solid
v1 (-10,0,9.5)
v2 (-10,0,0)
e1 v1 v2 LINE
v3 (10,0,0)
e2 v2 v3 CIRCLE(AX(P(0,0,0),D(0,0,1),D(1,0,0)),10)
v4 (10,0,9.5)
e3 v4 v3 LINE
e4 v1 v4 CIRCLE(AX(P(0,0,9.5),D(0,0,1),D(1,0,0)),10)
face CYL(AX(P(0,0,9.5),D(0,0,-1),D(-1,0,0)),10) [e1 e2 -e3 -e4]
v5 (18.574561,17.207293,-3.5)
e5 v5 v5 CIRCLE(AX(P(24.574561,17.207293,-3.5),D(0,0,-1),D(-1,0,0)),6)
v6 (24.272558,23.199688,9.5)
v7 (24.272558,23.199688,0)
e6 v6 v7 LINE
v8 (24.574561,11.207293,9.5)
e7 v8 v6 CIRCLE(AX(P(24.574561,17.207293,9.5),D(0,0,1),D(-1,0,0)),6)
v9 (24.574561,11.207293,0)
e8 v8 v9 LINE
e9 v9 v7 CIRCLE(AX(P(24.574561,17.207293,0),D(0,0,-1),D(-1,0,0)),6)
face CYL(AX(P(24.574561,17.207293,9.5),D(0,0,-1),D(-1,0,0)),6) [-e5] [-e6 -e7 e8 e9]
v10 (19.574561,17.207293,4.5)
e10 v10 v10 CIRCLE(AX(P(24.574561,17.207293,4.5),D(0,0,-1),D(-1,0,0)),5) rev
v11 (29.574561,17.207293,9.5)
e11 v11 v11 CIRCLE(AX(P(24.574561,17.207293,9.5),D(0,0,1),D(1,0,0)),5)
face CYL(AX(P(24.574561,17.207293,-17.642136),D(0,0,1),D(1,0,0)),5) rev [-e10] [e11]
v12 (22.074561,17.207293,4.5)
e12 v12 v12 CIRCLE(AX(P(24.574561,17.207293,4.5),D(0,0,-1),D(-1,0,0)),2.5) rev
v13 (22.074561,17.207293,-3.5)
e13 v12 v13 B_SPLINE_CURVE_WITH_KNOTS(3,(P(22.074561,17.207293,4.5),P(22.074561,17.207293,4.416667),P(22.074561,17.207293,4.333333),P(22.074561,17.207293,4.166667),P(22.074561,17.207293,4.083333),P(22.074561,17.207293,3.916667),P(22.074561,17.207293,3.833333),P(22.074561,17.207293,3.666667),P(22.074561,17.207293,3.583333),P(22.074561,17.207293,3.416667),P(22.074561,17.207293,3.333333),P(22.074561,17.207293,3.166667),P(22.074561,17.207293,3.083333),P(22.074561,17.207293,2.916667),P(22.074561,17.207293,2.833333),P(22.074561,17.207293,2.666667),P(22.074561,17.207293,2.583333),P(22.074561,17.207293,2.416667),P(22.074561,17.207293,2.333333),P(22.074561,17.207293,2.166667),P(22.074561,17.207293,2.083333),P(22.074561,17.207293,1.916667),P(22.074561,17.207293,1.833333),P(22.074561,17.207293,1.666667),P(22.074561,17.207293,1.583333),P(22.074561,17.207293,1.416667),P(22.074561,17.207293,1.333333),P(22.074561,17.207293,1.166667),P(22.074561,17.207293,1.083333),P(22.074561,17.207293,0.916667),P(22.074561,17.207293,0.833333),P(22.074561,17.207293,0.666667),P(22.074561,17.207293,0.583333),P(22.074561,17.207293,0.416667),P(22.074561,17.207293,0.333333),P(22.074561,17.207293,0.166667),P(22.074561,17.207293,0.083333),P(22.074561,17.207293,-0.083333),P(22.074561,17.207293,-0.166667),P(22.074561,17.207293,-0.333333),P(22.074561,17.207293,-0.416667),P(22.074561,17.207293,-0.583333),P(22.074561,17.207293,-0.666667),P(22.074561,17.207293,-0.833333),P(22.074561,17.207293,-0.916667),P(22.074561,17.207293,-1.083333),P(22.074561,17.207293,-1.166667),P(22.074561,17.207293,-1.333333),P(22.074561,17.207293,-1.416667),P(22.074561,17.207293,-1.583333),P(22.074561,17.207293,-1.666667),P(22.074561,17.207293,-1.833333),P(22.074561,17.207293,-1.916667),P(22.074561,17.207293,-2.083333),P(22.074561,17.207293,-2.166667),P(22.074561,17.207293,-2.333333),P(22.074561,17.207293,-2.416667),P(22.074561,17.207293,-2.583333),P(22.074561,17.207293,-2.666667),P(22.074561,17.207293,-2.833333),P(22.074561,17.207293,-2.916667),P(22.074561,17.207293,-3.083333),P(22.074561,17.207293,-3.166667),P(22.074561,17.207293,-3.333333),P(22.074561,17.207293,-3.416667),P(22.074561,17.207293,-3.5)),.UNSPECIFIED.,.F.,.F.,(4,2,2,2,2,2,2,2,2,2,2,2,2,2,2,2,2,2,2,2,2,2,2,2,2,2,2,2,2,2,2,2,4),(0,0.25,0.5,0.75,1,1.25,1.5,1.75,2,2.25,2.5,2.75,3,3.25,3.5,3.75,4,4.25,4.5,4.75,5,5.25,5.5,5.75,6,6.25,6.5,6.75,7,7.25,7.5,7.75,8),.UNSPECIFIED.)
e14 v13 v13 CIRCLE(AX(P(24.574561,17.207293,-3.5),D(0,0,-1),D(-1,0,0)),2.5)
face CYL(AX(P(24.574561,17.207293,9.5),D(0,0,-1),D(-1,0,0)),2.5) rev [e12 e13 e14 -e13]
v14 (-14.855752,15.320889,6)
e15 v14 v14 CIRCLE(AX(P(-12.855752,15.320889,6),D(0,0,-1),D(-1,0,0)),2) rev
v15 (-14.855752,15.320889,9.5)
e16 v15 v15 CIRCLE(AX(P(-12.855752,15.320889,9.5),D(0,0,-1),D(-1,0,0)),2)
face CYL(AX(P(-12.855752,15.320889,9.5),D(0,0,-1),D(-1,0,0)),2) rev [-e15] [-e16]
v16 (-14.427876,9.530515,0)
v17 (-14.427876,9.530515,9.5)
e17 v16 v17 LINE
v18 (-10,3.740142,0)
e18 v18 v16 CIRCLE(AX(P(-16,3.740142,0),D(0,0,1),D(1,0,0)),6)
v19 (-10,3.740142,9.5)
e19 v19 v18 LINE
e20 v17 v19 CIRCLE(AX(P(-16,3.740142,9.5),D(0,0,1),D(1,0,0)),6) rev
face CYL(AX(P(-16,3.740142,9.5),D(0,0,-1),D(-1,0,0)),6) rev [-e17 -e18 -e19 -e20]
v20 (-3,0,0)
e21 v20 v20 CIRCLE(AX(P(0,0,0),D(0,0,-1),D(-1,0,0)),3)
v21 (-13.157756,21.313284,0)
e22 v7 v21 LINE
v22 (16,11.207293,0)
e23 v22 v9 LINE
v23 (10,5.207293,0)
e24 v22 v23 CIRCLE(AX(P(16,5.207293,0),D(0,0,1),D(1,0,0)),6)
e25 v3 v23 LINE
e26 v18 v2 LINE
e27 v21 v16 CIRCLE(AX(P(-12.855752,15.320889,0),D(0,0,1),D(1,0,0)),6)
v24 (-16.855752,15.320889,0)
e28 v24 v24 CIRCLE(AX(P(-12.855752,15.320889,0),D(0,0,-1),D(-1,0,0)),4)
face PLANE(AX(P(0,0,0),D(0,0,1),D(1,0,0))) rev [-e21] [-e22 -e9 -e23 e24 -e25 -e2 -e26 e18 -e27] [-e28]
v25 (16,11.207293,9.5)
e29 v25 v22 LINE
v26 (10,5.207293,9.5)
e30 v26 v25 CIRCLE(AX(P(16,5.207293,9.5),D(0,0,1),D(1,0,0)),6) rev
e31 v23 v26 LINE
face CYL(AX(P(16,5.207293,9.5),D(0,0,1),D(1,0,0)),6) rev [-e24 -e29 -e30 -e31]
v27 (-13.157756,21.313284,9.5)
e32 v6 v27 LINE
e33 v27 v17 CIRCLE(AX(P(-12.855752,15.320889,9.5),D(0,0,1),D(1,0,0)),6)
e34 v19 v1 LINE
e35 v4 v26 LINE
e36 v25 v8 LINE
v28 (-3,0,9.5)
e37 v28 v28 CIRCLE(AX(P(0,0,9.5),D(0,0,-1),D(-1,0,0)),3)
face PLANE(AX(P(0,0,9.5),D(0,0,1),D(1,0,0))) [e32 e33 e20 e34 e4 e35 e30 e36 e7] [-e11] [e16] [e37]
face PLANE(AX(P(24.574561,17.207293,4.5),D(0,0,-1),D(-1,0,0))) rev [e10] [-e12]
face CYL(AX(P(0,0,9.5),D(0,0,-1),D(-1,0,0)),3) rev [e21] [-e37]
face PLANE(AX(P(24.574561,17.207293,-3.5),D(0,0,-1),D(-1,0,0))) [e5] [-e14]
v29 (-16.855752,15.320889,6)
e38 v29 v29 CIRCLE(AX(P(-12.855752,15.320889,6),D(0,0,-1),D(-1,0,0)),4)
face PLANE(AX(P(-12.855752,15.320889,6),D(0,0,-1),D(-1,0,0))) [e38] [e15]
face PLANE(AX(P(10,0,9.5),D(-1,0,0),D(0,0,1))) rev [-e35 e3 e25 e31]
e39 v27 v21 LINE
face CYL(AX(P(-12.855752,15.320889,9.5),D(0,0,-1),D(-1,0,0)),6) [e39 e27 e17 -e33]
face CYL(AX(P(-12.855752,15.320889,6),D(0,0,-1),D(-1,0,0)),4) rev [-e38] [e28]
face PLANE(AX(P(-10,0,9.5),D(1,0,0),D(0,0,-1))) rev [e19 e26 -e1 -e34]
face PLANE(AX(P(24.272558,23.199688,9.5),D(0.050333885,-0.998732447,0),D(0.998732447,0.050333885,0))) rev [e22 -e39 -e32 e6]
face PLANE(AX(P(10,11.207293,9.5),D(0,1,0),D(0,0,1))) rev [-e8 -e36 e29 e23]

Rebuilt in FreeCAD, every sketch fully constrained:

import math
import FreeCAD as App
import Part
import Sketcher
from FreeCAD import Vector


def edges_at(feature, points):
    """Names of the edges that pass closest to the given points."""
    edges = feature.Shape.Edges
    near = lambda p: min(range(len(edges)), key=lambda i: edges[i].distToShape(Part.Vertex(*p))[0])
    return sorted({f"Edge{near(p) + 1}" for p in points})

doc = App.newDocument("Part")
params = doc.addObject("Spreadsheet::Sheet", "Params")
for row, (alias, value) in enumerate([
    ("sketch1_radius", "10 mm"),
    ("sketch1_radius2", "6 mm"),
    ("pad1_length", "9.5 mm"),
    ("sketch2_diameter", "6 mm"),
    ("sketch3_diameter", "12 mm"),
    ("pad2_length", "3.5 mm"),
    ("sketch4_diameter", "5 mm"),
    ("sketch5_diameter", "10 mm"),
    ("pocket3_length", "5 mm"),
    ("sketch6_diameter", "4 mm"),
    ("sketch7_diameter", "8 mm"),
    ("pocket5_length", "6 mm"),
    ("fillet_radius", "6 mm"),
], start=1):
    params.set(f"A{row}", alias)
    params.set(f"B{row}", "=" + value)
    params.setAlias(f"B{row}", alias)

body = doc.addObject("PartDesign::Body", "Body")

# Sketch on XY plane
sketch1 = doc.addObject("Sketcher::SketchObject", "Sketch")
body.addObject(sketch1)
sketch1.AttachmentSupport = (doc.XY_Plane, [""])
sketch1.MapMode = "FlatFace"
sketch1.addGeometry([
    Part.LineSegment(Vector(-10, 9.320889, 0), Vector(-10, 0, 0)),  # 0
    Part.ArcOfCircle(Part.Circle(Vector(0, 0, 0), Vector(0, 0, 1), 10), math.radians(180), math.radians(360)),  # 1
    Part.LineSegment(Vector(10, 0, 0), Vector(10, 11.207293, 0)),  # 2
    Part.LineSegment(Vector(10, 11.207293, 0), Vector(24.574561, 11.207293, 0)),  # 3
    Part.ArcOfCircle(Part.Circle(Vector(24.574561, 17.207293, 0), Vector(0, 0, 1), 6), math.radians(-90), math.radians(92.885138)),  # 4
    Part.LineSegment(Vector(24.272558, 23.199688, 0), Vector(-13.157756, 21.313284, 0)),  # 5
    Part.ArcOfCircle(Part.Circle(Vector(-12.855752, 15.320889, 0), Vector(0, 0, 1), 6), math.radians(92.885138), math.radians(270)),  # 6
    Part.LineSegment(Vector(-12.855752, 9.320889, 0), Vector(-10, 9.320889, 0)),  # 7
], False)
sketch1.addConstraint([
    Sketcher.Constraint("Tangent", 0, 2, 1, 1),
    Sketcher.Constraint("Tangent", 1, 2, 2, 1),
    Sketcher.Constraint("Coincident", 2, 2, 3, 1),
    Sketcher.Constraint("Tangent", 3, 2, 4, 1),
    Sketcher.Constraint("Tangent", 4, 2, 5, 1),
    Sketcher.Constraint("Tangent", 5, 2, 6, 1),
    Sketcher.Constraint("Tangent", 6, 2, 7, 1),
    Sketcher.Constraint("Coincident", 7, 2, 0, 1),
    Sketcher.Constraint("Vertical", 0),
    Sketcher.Constraint("Vertical", 2),
    Sketcher.Constraint("Horizontal", 3),
    Sketcher.Constraint("Horizontal", 7),
    Sketcher.Constraint("Coincident", 1, 3, -1, 1),
    Sketcher.Constraint("Equal", 4, 6),
    Sketcher.Constraint("Radius", 1, 10.0),
    Sketcher.Constraint("Radius", 4, 6.0),
    Sketcher.Constraint("DistanceX", 3, 1, 3, 2, 14.574561),
    Sketcher.Constraint("DistanceY", 0, 2, 0, 1, 9.320889),
    Sketcher.Constraint("Distance", 5, 37.477819),
    Sketcher.Constraint("DistanceX", 7, 1, 7, 2, 2.855752),
])
sketch1.setExpression("Constraints[14]", "Params.sketch1_radius")
sketch1.setExpression("Constraints[15]", "Params.sketch1_radius2")
pad1 = doc.addObject("PartDesign::Pad", "Pad")
body.addObject(pad1)
pad1.Profile = sketch1
pad1.setExpression("Length", "Params.pad1_length")

# Sketch on XY plane
sketch2 = doc.addObject("Sketcher::SketchObject", "Sketch001")
body.addObject(sketch2)
sketch2.AttachmentSupport = (doc.XY_Plane, [""])
sketch2.MapMode = "FlatFace"
sketch2.addGeometry(Part.Circle(Vector(0, 0, 0), Vector(0, 0, 1), 3), False)
sketch2.addConstraint([
    Sketcher.Constraint("Coincident", 0, 3, -1, 1),
    Sketcher.Constraint("Diameter", 0, 6.0),
])
sketch2.setExpression("Constraints[1]", "Params.sketch2_diameter")
pocket1 = doc.addObject("PartDesign::Pocket", "Pocket")
body.addObject(pocket1)
pocket1.Profile = sketch2
pocket1.Type = "ThroughAll"
pocket1.Reversed = True

# Sketch on XY plane
sketch3 = doc.addObject("Sketcher::SketchObject", "Sketch002")
body.addObject(sketch3)
sketch3.AttachmentSupport = (doc.XY_Plane, [""])
sketch3.MapMode = "FlatFace"
sketch3.AttachmentOffset = App.Placement(Vector(0, 0, -3.5), App.Rotation())
sketch3.addGeometry(Part.Circle(Vector(24.574561, 17.207293, 0), Vector(0, 0, 1), 6), False)
sketch3.addConstraint([
    Sketcher.Constraint("Diameter", 0, 12.0),
    Sketcher.Constraint("DistanceX", -1, 1, 0, 3, 24.574561),
    Sketcher.Constraint("DistanceY", -1, 1, 0, 3, 17.207293),
])
sketch3.setExpression("Constraints[0]", "Params.sketch3_diameter")
pad2 = doc.addObject("PartDesign::Pad", "Pad001")
body.addObject(pad2)
pad2.Profile = sketch3
pad2.setExpression("Length", "Params.pad2_length")

# Sketch on XY plane
sketch4 = doc.addObject("Sketcher::SketchObject", "Sketch003")
body.addObject(sketch4)
sketch4.AttachmentSupport = (doc.XY_Plane, [""])
sketch4.MapMode = "FlatFace"
sketch4.AttachmentOffset = App.Placement(Vector(0, 0, -3.5), App.Rotation())
sketch4.addGeometry(Part.Circle(Vector(24.574561, 17.207293, 0), Vector(0, 0, 1), 2.5), False)
sketch4.addConstraint([
    Sketcher.Constraint("Diameter", 0, 5.0),
    Sketcher.Constraint("DistanceX", -1, 1, 0, 3, 24.574561),
    Sketcher.Constraint("DistanceY", -1, 1, 0, 3, 17.207293),
])
sketch4.setExpression("Constraints[0]", "Params.sketch4_diameter")
pocket2 = doc.addObject("PartDesign::Pocket", "Pocket001")
body.addObject(pocket2)
pocket2.Profile = sketch4
pocket2.Type = "ThroughAll"
pocket2.Reversed = True

# Sketch on XY plane
sketch5 = doc.addObject("Sketcher::SketchObject", "Sketch004")
body.addObject(sketch5)
sketch5.AttachmentSupport = (doc.XY_Plane, [""])
sketch5.MapMode = "FlatFace"
sketch5.AttachmentOffset = App.Placement(Vector(0, 0, 9.5), App.Rotation())
sketch5.addGeometry(Part.Circle(Vector(24.574561, 17.207293, 0), Vector(0, 0, 1), 5), False)
sketch5.addConstraint([
    Sketcher.Constraint("Diameter", 0, 10.0),
    Sketcher.Constraint("DistanceX", -1, 1, 0, 3, 24.574561),
    Sketcher.Constraint("DistanceY", -1, 1, 0, 3, 17.207293),
])
sketch5.setExpression("Constraints[0]", "Params.sketch5_diameter")
pocket3 = doc.addObject("PartDesign::Pocket", "Pocket002")
body.addObject(pocket3)
pocket3.Profile = sketch5
pocket3.setExpression("Length", "Params.pocket3_length")

# Sketch on XY plane
sketch6 = doc.addObject("Sketcher::SketchObject", "Sketch005")
body.addObject(sketch6)
sketch6.AttachmentSupport = (doc.XY_Plane, [""])
sketch6.MapMode = "FlatFace"
sketch6.addGeometry(Part.Circle(Vector(-12.855752, 15.320889, 0), Vector(0, 0, 1), 2), False)
sketch6.addConstraint([
    Sketcher.Constraint("Diameter", 0, 4.0),
    Sketcher.Constraint("DistanceY", -1, 1, 0, 3, 15.320889),
    Sketcher.Constraint("DistanceX", 0, 3, -1, 1, 12.855752),
])
sketch6.setExpression("Constraints[0]", "Params.sketch6_diameter")
pocket4 = doc.addObject("PartDesign::Pocket", "Pocket003")
body.addObject(pocket4)
pocket4.Profile = sketch6
pocket4.Type = "ThroughAll"
pocket4.Reversed = True

# Sketch on XY plane
sketch7 = doc.addObject("Sketcher::SketchObject", "Sketch006")
body.addObject(sketch7)
sketch7.AttachmentSupport = (doc.XY_Plane, [""])
sketch7.MapMode = "FlatFace"
sketch7.addGeometry(Part.Circle(Vector(-12.855752, 15.320889, 0), Vector(0, 0, 1), 4), False)
sketch7.addConstraint([
    Sketcher.Constraint("Diameter", 0, 8.0),
    Sketcher.Constraint("DistanceY", -1, 1, 0, 3, 15.320889),
    Sketcher.Constraint("DistanceX", 0, 3, -1, 1, 12.855752),
])
sketch7.setExpression("Constraints[0]", "Params.sketch7_diameter")
pocket5 = doc.addObject("PartDesign::Pocket", "Pocket004")
body.addObject(pocket5)
pocket5.Profile = sketch7
pocket5.setExpression("Length", "Params.pocket5_length")
pocket5.Reversed = True
doc.recompute()

fillet = doc.addObject("PartDesign::Fillet", "Fillet")
body.addObject(fillet)
fillet.Base = (pocket5, edges_at(pocket5, [(-10, 9.321, 4.75), (10, 11.207, 4.75)]))
fillet.setExpression("Radius", "Params.fillet_radius")

doc.recompute()
